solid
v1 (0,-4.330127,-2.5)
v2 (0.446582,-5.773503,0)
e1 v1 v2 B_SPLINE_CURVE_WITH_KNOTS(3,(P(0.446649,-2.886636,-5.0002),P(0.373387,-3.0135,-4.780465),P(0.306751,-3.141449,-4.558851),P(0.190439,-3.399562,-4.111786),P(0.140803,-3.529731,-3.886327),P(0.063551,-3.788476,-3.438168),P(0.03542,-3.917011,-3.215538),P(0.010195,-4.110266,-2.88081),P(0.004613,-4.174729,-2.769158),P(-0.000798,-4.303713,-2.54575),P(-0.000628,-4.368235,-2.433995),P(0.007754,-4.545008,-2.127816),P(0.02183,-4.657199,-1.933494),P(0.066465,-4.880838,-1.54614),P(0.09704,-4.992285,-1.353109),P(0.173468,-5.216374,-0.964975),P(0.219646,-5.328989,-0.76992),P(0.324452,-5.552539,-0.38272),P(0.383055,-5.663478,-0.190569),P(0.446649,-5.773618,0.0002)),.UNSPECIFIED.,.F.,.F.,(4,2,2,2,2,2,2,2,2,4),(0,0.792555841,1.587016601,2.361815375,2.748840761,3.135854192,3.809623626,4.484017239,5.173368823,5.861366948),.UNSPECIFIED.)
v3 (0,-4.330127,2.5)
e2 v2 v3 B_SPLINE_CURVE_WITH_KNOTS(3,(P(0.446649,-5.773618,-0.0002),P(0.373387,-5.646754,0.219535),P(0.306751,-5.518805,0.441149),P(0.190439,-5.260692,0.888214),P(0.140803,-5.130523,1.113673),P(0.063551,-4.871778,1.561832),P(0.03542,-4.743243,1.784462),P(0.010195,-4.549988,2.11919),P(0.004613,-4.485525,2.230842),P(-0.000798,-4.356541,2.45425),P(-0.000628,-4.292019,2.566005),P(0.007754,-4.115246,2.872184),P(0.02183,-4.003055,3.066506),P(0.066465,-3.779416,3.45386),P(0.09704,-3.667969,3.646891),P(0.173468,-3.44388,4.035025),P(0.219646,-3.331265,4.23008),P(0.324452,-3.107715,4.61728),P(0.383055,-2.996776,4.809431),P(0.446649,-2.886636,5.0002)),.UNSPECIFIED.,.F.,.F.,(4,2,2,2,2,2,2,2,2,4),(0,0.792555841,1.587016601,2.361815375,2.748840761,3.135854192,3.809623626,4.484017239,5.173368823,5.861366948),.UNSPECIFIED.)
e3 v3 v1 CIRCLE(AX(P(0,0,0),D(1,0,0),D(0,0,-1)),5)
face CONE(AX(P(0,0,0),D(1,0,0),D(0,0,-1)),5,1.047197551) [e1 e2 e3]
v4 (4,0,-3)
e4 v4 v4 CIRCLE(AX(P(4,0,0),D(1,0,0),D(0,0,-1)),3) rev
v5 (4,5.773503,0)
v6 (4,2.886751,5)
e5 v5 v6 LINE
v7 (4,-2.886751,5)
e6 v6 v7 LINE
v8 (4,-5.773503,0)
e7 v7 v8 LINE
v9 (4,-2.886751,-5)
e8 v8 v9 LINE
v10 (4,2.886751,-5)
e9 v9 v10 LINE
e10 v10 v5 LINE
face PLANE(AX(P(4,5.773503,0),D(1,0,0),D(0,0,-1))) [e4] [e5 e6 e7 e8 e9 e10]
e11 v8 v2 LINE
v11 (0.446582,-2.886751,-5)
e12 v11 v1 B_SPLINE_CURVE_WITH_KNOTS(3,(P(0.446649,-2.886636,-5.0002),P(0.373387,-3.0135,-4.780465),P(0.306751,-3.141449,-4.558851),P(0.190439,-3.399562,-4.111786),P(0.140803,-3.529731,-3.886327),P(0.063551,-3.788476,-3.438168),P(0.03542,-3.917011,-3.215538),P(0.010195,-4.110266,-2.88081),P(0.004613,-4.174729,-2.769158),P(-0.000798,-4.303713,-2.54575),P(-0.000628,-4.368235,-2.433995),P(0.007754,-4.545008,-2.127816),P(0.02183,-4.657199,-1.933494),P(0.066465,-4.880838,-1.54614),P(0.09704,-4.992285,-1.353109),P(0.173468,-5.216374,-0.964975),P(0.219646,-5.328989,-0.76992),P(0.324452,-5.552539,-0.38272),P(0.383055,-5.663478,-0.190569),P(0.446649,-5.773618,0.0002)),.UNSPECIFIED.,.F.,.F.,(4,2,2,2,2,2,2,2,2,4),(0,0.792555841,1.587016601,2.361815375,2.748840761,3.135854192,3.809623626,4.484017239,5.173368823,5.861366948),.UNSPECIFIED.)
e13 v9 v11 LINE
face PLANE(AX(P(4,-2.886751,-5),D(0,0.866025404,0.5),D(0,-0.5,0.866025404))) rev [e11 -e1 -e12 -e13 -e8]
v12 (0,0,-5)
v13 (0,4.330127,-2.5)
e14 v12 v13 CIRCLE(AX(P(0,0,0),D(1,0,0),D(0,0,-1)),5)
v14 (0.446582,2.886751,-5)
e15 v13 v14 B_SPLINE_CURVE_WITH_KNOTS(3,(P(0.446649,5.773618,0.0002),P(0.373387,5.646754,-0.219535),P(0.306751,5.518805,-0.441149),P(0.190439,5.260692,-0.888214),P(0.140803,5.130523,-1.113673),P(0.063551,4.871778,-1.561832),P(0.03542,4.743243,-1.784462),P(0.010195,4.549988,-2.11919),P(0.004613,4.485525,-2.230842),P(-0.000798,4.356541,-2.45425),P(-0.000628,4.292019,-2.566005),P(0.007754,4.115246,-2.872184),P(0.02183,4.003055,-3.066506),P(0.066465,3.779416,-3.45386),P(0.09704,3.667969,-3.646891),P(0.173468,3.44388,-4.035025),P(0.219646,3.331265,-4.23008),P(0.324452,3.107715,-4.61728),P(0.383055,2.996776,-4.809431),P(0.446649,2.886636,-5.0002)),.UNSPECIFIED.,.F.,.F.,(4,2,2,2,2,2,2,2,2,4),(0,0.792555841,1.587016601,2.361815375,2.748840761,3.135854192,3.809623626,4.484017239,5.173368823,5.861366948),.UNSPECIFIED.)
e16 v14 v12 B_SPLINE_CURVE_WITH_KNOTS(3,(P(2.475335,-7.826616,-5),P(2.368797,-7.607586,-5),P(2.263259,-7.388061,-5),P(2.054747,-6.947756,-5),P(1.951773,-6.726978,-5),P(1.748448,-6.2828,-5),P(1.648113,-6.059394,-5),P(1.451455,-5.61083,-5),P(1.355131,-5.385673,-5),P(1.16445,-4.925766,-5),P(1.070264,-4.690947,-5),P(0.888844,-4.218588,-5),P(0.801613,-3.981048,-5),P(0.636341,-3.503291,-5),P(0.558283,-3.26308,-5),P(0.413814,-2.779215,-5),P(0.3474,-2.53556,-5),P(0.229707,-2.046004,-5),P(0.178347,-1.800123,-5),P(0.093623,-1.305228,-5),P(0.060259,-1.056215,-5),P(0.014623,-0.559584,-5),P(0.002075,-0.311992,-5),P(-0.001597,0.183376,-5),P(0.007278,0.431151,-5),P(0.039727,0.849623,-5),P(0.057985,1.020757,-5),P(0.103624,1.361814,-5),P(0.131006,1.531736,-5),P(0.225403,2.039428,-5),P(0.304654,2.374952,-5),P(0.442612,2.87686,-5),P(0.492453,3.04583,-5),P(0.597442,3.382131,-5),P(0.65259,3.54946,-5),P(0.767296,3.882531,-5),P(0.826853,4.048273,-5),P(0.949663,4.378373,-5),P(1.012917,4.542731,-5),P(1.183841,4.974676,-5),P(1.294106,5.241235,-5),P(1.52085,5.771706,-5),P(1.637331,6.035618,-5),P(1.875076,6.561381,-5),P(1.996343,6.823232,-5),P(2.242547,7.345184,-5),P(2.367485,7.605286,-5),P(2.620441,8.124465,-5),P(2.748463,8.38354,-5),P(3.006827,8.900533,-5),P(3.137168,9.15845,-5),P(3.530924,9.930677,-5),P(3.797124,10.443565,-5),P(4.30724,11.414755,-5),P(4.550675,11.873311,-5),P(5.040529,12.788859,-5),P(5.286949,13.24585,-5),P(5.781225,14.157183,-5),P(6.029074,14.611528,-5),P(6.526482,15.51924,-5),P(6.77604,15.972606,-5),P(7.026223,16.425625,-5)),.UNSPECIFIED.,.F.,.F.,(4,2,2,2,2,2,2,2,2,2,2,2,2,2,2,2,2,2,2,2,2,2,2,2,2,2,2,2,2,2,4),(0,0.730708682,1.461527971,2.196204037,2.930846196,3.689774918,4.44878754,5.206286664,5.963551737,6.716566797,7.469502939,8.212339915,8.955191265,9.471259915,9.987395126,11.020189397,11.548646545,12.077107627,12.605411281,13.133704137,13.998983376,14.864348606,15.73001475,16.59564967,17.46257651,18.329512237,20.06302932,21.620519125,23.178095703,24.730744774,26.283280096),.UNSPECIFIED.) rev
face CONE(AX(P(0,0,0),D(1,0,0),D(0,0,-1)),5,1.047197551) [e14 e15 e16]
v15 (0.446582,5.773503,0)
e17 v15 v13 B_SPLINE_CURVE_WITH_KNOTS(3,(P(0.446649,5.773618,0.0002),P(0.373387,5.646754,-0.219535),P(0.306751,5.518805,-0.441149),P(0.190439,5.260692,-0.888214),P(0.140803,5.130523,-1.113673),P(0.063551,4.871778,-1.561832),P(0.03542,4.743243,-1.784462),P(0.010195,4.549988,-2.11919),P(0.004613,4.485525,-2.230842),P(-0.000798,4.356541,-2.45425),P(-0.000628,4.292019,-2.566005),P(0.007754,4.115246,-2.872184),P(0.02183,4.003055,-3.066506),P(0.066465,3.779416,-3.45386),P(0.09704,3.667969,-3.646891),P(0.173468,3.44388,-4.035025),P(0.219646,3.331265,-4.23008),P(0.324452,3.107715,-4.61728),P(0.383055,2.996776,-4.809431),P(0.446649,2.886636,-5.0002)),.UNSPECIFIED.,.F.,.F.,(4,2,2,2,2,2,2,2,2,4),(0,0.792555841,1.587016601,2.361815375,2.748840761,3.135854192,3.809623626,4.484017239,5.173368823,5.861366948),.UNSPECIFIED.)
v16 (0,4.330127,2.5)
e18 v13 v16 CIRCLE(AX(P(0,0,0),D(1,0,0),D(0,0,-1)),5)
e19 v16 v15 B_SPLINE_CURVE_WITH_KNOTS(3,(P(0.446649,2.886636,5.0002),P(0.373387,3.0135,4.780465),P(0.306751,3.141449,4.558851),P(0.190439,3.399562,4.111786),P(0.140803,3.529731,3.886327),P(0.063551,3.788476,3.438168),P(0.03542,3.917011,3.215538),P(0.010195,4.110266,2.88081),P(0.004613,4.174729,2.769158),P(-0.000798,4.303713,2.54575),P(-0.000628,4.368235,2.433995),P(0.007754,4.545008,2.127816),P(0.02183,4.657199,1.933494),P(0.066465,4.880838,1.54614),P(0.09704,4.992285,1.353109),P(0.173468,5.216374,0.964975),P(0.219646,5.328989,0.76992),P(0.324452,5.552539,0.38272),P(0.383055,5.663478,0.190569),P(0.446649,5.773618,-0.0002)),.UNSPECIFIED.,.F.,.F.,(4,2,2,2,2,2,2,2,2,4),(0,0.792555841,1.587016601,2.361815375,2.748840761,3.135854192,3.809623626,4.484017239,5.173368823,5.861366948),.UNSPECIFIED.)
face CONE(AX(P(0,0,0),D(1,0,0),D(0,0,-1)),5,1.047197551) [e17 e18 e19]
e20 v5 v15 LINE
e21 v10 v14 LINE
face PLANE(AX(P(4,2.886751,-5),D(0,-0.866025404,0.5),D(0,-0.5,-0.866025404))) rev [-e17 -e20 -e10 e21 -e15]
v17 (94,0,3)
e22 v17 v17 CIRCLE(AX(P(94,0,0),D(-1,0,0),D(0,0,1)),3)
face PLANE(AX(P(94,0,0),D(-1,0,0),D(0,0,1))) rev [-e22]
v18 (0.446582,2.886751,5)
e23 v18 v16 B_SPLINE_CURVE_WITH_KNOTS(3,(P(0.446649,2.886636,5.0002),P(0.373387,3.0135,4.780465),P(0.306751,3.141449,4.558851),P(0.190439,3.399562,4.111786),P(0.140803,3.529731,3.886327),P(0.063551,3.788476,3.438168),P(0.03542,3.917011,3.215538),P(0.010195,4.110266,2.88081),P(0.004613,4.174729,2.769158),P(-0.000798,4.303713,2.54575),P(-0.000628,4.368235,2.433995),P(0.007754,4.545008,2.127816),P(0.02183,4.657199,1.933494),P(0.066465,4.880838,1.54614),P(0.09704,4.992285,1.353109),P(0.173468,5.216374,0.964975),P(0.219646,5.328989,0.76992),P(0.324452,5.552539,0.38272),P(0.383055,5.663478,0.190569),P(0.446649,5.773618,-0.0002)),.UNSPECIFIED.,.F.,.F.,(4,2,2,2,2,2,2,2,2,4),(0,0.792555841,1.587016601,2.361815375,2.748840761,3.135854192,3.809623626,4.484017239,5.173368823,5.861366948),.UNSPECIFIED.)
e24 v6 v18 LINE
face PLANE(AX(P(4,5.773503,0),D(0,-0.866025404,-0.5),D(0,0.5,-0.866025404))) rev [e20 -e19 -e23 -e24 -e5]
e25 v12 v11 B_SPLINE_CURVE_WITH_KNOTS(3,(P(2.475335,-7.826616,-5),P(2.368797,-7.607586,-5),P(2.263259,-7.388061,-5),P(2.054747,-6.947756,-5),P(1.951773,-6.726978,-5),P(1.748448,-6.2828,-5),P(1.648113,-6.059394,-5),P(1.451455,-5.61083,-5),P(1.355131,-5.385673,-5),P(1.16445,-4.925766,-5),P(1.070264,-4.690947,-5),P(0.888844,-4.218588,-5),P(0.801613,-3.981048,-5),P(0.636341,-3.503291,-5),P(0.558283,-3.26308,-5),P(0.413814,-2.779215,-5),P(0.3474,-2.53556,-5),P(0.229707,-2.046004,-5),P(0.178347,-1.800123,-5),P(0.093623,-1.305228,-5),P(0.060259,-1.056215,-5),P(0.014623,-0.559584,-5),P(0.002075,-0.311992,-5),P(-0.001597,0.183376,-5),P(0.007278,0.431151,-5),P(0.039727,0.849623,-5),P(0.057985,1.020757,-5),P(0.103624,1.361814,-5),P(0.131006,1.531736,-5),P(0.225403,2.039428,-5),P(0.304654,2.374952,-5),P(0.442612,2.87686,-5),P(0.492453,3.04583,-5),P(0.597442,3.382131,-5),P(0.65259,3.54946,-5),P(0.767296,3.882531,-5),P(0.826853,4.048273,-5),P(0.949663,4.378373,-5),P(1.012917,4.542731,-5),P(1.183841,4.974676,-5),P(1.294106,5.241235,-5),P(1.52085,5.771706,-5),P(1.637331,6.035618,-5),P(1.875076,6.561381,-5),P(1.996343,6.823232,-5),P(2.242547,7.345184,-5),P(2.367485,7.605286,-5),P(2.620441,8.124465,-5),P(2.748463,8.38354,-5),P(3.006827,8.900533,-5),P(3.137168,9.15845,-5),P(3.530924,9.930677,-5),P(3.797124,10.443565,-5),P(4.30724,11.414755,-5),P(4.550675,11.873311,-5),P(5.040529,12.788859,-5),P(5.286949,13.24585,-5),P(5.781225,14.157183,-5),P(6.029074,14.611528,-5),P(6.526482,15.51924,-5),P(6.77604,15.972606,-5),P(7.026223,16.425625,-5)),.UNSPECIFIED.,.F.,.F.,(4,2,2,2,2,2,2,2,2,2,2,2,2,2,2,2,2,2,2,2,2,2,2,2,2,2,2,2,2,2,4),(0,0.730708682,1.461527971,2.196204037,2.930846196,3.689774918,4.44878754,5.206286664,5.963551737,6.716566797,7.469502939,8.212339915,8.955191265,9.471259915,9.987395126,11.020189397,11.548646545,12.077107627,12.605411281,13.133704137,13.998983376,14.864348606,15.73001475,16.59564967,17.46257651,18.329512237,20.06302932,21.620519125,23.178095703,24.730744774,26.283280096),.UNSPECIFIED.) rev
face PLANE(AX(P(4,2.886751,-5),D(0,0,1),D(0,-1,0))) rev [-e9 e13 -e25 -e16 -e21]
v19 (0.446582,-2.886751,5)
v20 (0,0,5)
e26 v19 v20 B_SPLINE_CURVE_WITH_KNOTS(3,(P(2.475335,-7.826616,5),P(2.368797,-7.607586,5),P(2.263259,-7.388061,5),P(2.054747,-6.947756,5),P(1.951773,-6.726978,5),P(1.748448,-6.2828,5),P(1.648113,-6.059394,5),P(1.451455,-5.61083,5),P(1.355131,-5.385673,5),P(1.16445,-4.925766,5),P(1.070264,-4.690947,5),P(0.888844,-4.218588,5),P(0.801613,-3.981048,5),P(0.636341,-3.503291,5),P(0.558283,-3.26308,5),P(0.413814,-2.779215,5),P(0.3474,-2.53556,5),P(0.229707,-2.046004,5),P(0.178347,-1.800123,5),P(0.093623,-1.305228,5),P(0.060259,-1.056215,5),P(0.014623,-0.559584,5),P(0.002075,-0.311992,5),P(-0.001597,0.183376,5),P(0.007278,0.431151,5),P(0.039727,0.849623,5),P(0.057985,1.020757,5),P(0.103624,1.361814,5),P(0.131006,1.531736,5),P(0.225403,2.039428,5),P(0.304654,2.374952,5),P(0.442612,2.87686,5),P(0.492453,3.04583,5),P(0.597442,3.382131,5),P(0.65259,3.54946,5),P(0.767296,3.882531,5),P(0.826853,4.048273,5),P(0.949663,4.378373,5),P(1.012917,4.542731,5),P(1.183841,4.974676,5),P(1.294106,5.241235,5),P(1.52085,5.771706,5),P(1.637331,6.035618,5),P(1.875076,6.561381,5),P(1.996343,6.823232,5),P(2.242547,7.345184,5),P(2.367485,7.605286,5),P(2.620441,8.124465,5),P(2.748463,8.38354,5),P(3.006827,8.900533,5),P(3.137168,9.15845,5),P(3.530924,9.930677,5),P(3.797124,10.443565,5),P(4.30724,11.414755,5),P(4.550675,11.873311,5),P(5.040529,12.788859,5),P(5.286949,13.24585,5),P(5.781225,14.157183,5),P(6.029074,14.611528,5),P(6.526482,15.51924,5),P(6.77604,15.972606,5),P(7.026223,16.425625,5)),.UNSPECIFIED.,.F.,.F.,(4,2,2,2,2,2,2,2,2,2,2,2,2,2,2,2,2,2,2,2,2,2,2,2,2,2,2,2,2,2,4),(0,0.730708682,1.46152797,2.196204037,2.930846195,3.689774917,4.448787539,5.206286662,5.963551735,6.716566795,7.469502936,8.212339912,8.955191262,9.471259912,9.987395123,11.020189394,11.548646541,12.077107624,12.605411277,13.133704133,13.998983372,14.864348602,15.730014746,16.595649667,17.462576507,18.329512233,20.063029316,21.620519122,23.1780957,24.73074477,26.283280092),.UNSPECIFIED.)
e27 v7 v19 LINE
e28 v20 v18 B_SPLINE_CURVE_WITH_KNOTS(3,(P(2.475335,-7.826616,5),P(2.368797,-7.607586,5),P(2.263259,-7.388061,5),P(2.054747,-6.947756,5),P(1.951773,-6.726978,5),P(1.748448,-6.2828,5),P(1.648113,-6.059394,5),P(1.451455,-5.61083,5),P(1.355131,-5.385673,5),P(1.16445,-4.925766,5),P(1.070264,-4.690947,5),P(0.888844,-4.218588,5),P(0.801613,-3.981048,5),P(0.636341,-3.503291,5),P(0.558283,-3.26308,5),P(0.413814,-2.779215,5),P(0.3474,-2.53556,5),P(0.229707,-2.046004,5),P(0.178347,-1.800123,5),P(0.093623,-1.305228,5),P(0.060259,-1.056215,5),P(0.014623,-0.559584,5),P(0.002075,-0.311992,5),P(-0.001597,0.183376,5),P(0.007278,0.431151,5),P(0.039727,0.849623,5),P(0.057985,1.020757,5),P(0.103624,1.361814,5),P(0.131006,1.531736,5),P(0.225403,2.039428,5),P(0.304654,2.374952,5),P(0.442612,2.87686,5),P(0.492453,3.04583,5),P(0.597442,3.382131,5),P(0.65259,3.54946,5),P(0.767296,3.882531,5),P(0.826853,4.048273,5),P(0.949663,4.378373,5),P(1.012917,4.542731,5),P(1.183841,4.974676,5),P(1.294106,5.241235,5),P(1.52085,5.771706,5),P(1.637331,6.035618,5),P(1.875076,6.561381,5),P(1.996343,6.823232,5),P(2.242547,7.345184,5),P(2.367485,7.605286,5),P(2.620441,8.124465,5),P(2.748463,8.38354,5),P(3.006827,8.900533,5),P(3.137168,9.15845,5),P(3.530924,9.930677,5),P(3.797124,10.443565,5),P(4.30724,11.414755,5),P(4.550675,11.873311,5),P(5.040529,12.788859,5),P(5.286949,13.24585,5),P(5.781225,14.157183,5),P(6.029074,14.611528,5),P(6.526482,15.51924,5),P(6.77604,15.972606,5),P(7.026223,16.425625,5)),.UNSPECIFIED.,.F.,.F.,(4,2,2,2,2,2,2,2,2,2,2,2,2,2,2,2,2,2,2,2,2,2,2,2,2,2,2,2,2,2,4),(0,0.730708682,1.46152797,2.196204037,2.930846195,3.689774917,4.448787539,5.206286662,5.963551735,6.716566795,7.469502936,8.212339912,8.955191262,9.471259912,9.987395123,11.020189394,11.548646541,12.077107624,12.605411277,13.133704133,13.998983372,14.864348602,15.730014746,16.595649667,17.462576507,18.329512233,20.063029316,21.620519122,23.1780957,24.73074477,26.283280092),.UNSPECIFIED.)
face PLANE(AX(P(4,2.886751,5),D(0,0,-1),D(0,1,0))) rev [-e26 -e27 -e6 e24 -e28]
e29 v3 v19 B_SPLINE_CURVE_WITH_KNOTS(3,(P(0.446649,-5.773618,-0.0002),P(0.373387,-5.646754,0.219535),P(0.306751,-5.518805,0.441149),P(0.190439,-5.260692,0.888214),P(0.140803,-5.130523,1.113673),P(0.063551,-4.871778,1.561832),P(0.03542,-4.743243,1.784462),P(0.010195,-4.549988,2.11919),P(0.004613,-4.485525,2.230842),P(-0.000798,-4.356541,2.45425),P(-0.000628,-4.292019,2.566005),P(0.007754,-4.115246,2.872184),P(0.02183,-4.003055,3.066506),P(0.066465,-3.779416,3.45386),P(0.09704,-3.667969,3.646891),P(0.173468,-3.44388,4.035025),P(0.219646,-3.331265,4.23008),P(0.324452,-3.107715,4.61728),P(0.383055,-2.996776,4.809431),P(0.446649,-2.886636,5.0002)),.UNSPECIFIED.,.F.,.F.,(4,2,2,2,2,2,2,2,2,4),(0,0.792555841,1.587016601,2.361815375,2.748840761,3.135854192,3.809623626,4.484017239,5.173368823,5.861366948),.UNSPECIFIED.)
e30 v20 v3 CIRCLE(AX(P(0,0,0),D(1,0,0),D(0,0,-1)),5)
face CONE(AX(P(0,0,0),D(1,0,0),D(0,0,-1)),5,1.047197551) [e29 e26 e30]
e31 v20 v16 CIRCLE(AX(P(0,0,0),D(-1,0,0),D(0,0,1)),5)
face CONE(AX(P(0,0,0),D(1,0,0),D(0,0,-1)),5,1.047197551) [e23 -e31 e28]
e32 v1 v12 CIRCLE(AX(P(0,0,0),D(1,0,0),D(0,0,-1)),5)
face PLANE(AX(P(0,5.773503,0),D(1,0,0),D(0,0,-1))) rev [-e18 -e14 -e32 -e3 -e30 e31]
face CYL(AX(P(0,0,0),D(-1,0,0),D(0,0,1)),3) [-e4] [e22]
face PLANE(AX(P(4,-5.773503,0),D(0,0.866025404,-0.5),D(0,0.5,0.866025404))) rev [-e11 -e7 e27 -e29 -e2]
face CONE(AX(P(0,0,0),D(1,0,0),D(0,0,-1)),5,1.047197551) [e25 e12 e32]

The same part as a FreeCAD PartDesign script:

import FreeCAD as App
import Part
import Sketcher
from FreeCAD import Vector
Q = App.Units.Quantity

doc = App.newDocument("Part")
body = doc.addObject("PartDesign::Body", "Body")

# Sketch on YZ plane
sketch1 = doc.addObject("Sketcher::SketchObject", "Sketch")
body.addObject(sketch1)
sketch1.AttachmentSupport = (doc.YZ_Plane, [""])
sketch1.MapMode = "FlatFace"
sketch1.addGeometry([
    Part.LineSegment(Vector(-2.886751, -5, 0), Vector(2.886751, -5, 0)),  # 0
    Part.LineSegment(Vector(2.886751, -5, 0), Vector(5.773503, 0, 0)),  # 1
    Part.LineSegment(Vector(5.773503, 0, 0), Vector(2.886751, 5, 0)),  # 2
    Part.LineSegment(Vector(2.886751, 5, 0), Vector(-2.886751, 5, 0)),  # 3
    Part.LineSegment(Vector(-2.886751, 5, 0), Vector(-5.773503, 0, 0)),  # 4
    Part.LineSegment(Vector(-5.773503, 0, 0), Vector(-2.886751, -5, 0)),  # 5
], False)
sketch1.addConstraint([
    Sketcher.Constraint("Coincident", 0, 2, 1, 1),
    Sketcher.Constraint("Coincident", 1, 2, 2, 1),
    Sketcher.Constraint("Coincident", 2, 2, 3, 1),
    Sketcher.Constraint("Coincident", 3, 2, 4, 1),
    Sketcher.Constraint("Coincident", 4, 2, 5, 1),
    Sketcher.Constraint("Coincident", 5, 2, 0, 1),
    Sketcher.Constraint("Horizontal", 0),
    Sketcher.Constraint("Horizontal", 3),
    Sketcher.Constraint("Symmetric", 0, 2, 3, 2, -1, 1),
    Sketcher.Constraint("Symmetric", 1, 2, 4, 2, -1, 1),
    Sketcher.Constraint("PointOnObject", 1, 2, -1),
    Sketcher.Constraint("Parallel", 2, 5),
    Sketcher.Constraint("Vertical", 0, 2, 2, 2),
    Sketcher.Constraint("Angle", 1, Q("60 deg")),
    Sketcher.Constraint("DistanceY", 0, 2, -1, 1, 5.0),
    Sketcher.Constraint("DistanceX", 0, 1, 0, 2, 5.773503),
])
pad1 = doc.addObject("PartDesign::Pad", "Pad")
body.addObject(pad1)
pad1.Profile = sketch1
pad1.Length = 4

# Sketch on XY plane
sketch2 = doc.addObject("Sketcher::SketchObject", "Sketch001")
body.addObject(sketch2)
sketch2.AttachmentSupport = (doc.XY_Plane, [""])
sketch2.MapMode = "FlatFace"
sketch2.addGeometry([
    Part.LineSegment(Vector(0, 3, 0), Vector(0, 0, 0)),
    Part.LineSegment(Vector(0, 0, 0), Vector(94, 0, 0)),
    Part.LineSegment(Vector(94, 0, 0), Vector(94, 3, 0)),
    Part.LineSegment(Vector(94, 3, 0), Vector(0, 3, 0)),
], False)
sketch2.addConstraint([
    Sketcher.Constraint("Coincident", 0, 2, 1, 1),
    Sketcher.Constraint("Coincident", 1, 2, 2, 1),
    Sketcher.Constraint("Coincident", 2, 2, 3, 1),
    Sketcher.Constraint("Coincident", 3, 2, 0, 1),
    Sketcher.Constraint("Vertical", 0),
    Sketcher.Constraint("Horizontal", 1),
    Sketcher.Constraint("Vertical", 2),
    Sketcher.Constraint("Horizontal", 3),
    Sketcher.Constraint("Coincident", 0, 2, -1, 1),
    Sketcher.Constraint("DistanceX", 1, 1, 1, 2, 94.0),
    Sketcher.Constraint("DistanceY", 0, 2, 0, 1, 3.0),
])
revolution = doc.addObject("PartDesign::Revolution", "Revolution")
body.addObject(revolution)
revolution.Profile = sketch2
revolution.ReferenceAxis = (sketch2, ["H_Axis"])
revolution.Angle = 360

# Sketch on XY plane
sketch3 = doc.addObject("Sketcher::SketchObject", "Sketch002")
body.addObject(sketch3)
sketch3.AttachmentSupport = (doc.XY_Plane, [""])
sketch3.MapMode = "FlatFace"
sketch3.addGeometry([
    Part.LineSegment(Vector(0, 5, 0), Vector(3.333333, 10.773503, 0)),  # 0
    Part.LineSegment(Vector(3.333333, 10.773503, 0), Vector(3.333333, 15.773503, 0)),  # 1
    Part.LineSegment(Vector(3.333333, 15.773503, 0), Vector(-10, 15.773503, 0)),  # 2
    Part.LineSegment(Vector(-10, 15.773503, 0), Vector(-10, 5, 0)),  # 3
    Part.LineSegment(Vector(-10, 5, 0), Vector(0, 5, 0)),  # 4
], False)
sketch3.addConstraint([
    Sketcher.Constraint("Coincident", 0, 2, 1, 1),
    Sketcher.Constraint("Coincident", 1, 2, 2, 1),
    Sketcher.Constraint("Coincident", 2, 2, 3, 1),
    Sketcher.Constraint("Coincident", 3, 2, 4, 1),
    Sketcher.Constraint("Coincident", 4, 2, 0, 1),
    Sketcher.Constraint("Vertical", 1),
    Sketcher.Constraint("Horizontal", 2),
    Sketcher.Constraint("Vertical", 3),
    Sketcher.Constraint("Horizontal", 4),
    Sketcher.Constraint("PointOnObject", 4, 2, -2),
    Sketcher.Constraint("DistanceX", 4, 1, 4, 2, 10.0),
    Sketcher.Constraint("DistanceY", 1, 1, 1, 2, 5.0),
    Sketcher.Constraint("Angle", 0, Q("60 deg")),
    Sketcher.Constraint("DistanceY", -1, 1, 3, 2, 5.0),
    Sketcher.Constraint("DistanceX", 2, 2, 2, 1, 13.333333),
])
groove = doc.addObject("PartDesign::Groove", "Groove")
body.addObject(groove)
groove.Profile = sketch3
groove.ReferenceAxis = (sketch3, ["H_Axis"])
groove.Angle = 360

doc.recompute()
